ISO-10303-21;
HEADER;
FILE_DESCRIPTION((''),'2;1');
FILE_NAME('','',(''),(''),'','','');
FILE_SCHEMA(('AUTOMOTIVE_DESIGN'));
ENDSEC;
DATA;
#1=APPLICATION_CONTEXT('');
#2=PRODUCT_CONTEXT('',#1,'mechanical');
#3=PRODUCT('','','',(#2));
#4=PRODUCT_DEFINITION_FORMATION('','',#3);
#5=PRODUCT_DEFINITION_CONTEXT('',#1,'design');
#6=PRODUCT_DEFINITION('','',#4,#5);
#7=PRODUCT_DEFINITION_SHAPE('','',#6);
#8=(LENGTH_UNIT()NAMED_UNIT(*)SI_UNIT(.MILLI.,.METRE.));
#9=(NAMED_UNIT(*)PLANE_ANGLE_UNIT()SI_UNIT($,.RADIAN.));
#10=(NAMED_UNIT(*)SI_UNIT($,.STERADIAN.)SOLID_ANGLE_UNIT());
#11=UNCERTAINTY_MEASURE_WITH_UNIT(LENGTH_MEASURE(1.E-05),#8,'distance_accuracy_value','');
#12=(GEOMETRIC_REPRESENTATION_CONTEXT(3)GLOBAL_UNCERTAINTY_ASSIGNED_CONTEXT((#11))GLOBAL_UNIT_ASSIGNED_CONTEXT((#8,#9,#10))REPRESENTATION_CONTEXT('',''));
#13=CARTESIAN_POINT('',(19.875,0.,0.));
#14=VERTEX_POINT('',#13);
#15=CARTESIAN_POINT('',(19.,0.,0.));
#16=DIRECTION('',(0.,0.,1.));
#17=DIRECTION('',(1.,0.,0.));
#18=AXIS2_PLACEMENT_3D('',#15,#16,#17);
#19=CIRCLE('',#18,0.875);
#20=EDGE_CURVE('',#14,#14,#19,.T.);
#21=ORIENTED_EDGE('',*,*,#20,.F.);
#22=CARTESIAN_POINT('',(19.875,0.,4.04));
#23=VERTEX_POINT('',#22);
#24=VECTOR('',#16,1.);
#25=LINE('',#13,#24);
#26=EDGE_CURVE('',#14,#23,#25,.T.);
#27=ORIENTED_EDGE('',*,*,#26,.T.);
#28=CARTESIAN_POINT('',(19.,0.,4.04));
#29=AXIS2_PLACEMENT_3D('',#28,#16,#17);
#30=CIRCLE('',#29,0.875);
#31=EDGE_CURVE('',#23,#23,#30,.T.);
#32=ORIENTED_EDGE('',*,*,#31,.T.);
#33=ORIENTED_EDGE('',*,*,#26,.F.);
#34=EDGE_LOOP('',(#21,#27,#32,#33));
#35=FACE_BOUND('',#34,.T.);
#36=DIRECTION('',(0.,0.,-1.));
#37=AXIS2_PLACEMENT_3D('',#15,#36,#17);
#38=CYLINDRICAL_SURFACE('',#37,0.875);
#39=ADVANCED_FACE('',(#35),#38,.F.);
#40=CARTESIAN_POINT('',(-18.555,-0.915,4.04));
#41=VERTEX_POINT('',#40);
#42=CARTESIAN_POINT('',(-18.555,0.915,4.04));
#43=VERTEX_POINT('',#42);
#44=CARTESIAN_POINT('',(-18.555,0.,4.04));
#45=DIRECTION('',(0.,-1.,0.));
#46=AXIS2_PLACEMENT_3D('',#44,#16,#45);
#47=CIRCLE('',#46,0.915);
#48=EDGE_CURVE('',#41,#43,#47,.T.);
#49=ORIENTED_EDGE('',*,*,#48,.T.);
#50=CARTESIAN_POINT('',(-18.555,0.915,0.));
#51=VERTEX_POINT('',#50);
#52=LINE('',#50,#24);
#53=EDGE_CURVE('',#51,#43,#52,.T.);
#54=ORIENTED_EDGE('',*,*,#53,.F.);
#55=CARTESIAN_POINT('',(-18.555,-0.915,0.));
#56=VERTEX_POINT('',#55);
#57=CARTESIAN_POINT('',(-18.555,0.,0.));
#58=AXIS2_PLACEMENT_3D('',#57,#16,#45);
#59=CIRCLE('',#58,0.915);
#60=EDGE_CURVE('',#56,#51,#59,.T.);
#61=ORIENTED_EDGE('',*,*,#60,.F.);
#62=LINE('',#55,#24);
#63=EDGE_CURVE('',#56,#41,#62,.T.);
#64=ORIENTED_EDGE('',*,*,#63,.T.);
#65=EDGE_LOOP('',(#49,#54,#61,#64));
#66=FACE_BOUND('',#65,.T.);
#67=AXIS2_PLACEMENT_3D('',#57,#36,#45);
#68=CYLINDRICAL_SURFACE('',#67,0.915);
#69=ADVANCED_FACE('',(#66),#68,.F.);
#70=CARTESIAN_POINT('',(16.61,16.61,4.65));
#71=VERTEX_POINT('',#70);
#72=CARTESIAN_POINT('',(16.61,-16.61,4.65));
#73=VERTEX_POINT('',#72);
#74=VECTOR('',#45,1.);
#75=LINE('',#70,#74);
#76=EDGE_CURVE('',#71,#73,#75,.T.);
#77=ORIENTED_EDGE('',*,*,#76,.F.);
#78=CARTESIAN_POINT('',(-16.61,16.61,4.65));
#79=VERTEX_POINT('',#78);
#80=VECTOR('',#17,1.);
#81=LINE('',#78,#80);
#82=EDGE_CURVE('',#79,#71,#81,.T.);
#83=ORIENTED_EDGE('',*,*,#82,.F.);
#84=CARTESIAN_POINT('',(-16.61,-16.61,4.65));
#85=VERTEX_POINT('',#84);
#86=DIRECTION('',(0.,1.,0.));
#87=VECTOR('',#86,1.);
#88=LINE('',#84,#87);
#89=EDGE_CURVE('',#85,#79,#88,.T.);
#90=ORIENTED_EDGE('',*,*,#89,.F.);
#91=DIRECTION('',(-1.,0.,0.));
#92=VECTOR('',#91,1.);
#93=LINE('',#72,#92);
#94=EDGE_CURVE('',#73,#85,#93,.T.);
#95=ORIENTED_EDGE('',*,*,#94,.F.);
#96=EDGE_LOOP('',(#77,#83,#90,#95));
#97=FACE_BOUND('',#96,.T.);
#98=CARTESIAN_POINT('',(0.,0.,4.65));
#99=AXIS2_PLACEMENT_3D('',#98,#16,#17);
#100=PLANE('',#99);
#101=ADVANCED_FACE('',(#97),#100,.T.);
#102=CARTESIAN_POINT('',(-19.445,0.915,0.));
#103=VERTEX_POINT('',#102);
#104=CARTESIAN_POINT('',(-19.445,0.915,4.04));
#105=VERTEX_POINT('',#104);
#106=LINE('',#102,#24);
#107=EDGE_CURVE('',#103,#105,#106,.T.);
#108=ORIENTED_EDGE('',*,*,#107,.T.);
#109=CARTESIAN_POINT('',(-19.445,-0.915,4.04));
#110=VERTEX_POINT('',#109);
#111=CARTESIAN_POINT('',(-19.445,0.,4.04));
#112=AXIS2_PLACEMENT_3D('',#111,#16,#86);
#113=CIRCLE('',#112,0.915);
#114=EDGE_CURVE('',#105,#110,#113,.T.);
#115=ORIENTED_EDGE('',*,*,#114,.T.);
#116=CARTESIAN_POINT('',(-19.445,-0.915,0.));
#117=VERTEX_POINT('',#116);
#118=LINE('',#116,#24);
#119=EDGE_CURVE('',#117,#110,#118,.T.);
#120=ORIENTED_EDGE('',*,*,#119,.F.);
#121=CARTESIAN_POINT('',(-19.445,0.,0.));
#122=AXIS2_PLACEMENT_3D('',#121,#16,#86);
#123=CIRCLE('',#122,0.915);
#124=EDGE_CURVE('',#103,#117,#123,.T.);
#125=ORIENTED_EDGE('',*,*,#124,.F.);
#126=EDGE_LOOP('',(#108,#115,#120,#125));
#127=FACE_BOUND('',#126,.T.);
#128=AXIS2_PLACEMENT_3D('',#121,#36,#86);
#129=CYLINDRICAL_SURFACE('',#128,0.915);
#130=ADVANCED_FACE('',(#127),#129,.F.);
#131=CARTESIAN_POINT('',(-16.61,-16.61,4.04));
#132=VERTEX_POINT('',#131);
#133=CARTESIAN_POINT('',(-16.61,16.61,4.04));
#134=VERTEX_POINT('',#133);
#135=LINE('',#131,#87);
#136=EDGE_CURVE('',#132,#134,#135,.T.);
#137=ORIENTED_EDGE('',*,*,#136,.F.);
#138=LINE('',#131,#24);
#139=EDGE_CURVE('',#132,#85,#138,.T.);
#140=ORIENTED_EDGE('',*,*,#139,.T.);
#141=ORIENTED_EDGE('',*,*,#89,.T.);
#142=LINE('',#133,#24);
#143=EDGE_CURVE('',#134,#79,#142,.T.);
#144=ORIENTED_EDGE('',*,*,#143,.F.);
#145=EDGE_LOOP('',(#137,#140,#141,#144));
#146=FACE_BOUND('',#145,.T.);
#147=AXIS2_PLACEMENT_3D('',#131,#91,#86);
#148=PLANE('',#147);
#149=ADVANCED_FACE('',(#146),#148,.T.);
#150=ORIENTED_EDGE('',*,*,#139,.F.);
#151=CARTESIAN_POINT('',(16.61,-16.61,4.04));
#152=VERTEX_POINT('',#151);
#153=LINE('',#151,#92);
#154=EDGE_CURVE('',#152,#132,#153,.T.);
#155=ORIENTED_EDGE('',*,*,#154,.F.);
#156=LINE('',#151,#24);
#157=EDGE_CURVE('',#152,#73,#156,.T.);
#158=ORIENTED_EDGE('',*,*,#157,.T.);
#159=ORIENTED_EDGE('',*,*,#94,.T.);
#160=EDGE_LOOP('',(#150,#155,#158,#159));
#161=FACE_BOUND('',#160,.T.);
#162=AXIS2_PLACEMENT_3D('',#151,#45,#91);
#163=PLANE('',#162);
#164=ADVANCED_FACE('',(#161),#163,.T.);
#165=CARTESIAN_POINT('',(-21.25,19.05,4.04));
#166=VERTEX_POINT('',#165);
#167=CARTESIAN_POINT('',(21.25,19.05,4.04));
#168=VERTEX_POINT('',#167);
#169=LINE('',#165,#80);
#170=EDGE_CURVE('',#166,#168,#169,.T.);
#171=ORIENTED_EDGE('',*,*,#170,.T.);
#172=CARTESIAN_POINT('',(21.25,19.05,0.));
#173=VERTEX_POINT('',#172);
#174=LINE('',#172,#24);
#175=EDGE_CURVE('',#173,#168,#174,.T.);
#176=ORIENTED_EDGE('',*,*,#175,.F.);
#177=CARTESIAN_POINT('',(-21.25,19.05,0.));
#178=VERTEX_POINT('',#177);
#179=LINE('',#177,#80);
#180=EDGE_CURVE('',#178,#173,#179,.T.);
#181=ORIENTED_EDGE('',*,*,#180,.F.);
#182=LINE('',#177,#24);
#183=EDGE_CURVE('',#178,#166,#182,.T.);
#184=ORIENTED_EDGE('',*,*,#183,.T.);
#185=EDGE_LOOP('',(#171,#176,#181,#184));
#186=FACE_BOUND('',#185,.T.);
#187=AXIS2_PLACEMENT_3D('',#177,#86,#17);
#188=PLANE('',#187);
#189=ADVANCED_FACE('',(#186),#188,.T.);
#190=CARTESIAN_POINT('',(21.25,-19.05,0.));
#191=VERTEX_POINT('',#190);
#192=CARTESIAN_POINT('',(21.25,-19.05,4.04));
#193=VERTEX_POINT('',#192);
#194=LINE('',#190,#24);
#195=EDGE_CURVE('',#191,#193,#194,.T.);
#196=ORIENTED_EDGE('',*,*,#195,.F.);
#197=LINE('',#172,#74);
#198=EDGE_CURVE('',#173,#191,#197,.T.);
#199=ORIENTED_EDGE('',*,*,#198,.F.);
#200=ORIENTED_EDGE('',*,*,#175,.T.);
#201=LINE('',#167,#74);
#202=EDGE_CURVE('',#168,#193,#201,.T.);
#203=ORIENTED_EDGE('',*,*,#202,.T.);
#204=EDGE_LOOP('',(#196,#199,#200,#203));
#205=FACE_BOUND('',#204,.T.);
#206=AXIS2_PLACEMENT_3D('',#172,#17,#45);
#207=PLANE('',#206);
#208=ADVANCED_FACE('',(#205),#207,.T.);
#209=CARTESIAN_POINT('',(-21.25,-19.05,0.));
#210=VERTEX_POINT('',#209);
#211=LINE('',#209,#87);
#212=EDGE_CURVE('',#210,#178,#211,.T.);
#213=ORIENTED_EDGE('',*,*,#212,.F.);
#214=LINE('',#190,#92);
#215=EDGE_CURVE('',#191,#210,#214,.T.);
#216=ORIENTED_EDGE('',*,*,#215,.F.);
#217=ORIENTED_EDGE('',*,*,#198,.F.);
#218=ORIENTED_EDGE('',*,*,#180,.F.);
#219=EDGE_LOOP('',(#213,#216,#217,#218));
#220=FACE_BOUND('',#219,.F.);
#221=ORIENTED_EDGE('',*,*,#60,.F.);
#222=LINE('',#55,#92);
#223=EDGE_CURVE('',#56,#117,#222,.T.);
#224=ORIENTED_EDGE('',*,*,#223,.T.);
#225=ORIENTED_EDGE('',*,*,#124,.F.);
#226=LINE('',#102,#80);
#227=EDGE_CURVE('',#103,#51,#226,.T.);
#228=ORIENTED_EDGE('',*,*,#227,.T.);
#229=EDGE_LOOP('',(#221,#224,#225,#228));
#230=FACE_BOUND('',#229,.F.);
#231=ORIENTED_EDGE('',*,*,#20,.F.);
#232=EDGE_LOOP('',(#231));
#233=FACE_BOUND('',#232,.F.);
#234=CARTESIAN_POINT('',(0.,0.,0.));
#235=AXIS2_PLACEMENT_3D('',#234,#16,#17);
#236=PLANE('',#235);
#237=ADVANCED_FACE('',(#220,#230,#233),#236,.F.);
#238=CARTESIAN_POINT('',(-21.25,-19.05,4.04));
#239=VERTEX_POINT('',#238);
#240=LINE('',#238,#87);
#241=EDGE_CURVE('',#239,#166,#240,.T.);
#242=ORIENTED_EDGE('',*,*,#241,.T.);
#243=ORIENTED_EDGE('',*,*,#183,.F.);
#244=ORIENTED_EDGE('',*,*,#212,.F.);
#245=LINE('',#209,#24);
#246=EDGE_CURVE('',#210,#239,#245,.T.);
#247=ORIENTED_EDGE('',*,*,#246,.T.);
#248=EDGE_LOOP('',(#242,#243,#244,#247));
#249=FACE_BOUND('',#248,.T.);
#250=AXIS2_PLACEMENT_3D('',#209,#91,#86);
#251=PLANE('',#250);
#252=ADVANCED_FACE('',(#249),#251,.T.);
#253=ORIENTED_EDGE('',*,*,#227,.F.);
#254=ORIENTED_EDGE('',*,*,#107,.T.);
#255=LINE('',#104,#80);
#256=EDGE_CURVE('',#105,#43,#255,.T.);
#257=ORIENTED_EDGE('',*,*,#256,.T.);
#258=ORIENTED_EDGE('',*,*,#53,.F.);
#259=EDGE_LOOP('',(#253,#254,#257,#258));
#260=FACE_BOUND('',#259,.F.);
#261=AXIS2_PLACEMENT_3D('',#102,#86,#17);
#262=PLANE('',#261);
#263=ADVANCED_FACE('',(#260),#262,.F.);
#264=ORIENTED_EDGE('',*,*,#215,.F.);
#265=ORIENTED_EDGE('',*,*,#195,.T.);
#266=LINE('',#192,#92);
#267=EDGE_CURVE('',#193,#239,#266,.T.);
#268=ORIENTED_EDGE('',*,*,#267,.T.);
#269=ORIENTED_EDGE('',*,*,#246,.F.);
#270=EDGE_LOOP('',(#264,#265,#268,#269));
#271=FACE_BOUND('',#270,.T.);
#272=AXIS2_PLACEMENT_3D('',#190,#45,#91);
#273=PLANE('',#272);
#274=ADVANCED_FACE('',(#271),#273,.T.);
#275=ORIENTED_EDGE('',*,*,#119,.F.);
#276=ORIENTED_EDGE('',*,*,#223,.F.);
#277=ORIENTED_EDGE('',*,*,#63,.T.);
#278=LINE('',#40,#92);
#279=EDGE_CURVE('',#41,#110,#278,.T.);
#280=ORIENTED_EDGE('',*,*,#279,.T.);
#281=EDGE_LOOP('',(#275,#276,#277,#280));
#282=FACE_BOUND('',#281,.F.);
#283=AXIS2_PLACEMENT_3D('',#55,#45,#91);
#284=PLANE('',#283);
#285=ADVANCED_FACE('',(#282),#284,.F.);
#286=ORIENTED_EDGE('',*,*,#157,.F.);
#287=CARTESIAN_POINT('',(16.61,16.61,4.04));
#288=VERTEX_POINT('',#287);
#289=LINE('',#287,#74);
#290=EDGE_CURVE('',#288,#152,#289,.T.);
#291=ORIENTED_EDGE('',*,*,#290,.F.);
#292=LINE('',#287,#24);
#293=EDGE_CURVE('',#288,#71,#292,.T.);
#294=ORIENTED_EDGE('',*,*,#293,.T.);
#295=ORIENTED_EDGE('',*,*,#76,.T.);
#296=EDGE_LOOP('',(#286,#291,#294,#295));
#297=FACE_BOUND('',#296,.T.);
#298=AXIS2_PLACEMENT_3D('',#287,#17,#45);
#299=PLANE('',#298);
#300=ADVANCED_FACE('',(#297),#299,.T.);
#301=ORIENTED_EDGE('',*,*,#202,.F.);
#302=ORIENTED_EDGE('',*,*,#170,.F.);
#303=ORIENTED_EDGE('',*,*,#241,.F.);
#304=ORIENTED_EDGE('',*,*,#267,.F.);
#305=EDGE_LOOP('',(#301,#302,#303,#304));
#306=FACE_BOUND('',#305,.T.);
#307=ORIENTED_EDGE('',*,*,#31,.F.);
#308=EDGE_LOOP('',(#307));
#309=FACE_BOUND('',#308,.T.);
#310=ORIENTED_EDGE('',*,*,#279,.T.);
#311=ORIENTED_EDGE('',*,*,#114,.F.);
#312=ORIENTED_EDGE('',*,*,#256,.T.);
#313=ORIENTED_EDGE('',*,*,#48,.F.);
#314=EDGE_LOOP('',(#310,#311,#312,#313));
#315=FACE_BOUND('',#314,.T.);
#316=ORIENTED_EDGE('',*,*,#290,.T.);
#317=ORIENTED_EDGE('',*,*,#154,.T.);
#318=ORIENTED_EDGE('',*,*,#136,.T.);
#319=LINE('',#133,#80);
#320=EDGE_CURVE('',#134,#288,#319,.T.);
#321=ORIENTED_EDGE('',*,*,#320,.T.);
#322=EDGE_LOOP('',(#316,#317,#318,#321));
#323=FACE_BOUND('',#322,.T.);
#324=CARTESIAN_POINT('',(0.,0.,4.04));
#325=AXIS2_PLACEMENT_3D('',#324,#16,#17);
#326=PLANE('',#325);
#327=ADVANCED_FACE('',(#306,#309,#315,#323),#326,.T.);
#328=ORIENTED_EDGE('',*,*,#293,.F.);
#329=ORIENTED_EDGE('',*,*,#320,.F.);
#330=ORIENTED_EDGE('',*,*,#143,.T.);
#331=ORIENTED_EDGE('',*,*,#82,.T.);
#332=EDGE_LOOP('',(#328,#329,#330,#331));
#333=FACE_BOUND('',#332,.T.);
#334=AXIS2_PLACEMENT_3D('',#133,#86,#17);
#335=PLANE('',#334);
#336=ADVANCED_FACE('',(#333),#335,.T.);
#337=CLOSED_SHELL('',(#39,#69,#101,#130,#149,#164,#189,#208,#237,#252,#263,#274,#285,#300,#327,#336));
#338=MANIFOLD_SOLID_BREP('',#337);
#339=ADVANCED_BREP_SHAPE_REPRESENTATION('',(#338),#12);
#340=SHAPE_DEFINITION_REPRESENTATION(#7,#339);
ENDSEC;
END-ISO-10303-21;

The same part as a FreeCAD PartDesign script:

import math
import FreeCAD as App
import Part
import Sketcher
from FreeCAD import Vector
Q = App.Units.Quantity


def add_polygon(sketch, points):
    """Adds a closed chain of lines whose ends are joined by coincident constraints."""
    first, n = sketch.GeometryCount, len(points)
    for a, b in zip(points, points[1:] + points[:1]):
        sketch.addGeometry(Part.LineSegment(App.Vector(*a, 0), App.Vector(*b, 0)), False)
    for i in range(n):
        sketch.addConstraint(Sketcher.Constraint("Coincident", first + i, 2, first + (i + 1) % n, 1))

doc = App.newDocument("Part")
body = doc.addObject("PartDesign::Body", "Body")

# Sketch on XY plane
sketch1 = doc.addObject("Sketcher::SketchObject", "Sketch")
body.addObject(sketch1)
sketch1.AttachmentSupport = (doc.XY_Plane, [""])
sketch1.MapMode = "FlatFace"
add_polygon(sketch1, [(21.2, 19.1), (-21.2, 19.1), (-21.2, -19.1), (21.2, -19.1)])  # lines 0-3
sketch1.addGeometry(Part.ArcOfCircle(Part.Circle(Vector(-19.4, 0, 0), Vector(0, 0, 1), 0.9), math.radians(90), math.radians(270)), False)  # 4
sketch1.addGeometry(Part.LineSegment(Vector(-19.4, 0.9, 0), Vector(-18.6, 0.9, 0)), False)  # 5
sketch1.addGeometry(Part.ArcOfCircle(Part.Circle(Vector(-18.6, 0, 0), Vector(0, 0, 1), 0.9), math.radians(-90), math.radians(90)), False)  # 6
sketch1.addGeometry(Part.LineSegment(Vector(-18.6, -0.9, 0), Vector(-19.4, -0.9, 0)), False)  # 7
sketch1.addGeometry(Part.Circle(Vector(19, 0, 0), Vector(0, 0, 1), 0.9), False)  # 8
sketch1.addConstraint(Sketcher.Constraint("Tangent", 4, 1, 5, 1))
sketch1.addConstraint(Sketcher.Constraint("Tangent", 5, 2, 6, 2))
sketch1.addConstraint(Sketcher.Constraint("Tangent", 6, 1, 7, 1))
sketch1.addConstraint(Sketcher.Constraint("Tangent", 7, 2, 4, 2))
sketch1.addConstraint(Sketcher.Constraint("Horizontal", 0))
sketch1.addConstraint(Sketcher.Constraint("Vertical", 1))
sketch1.addConstraint(Sketcher.Constraint("Horizontal", 2))
sketch1.addConstraint(Sketcher.Constraint("Vertical", 3))
sketch1.addConstraint(Sketcher.Constraint("Horizontal", 5))
sketch1.addConstraint(Sketcher.Constraint("Horizontal", 7))
sketch1.addConstraint(Sketcher.Constraint("Symmetric", 0, 2, 2, 2, -1, 1))
sketch1.addConstraint(Sketcher.Constraint("PointOnObject", 4, 3, -1))
sketch1.addConstraint(Sketcher.Constraint("PointOnObject", 8, 3, -1))
sketch1.addConstraint(Sketcher.Constraint("Diameter", 8, Q("1.75 mm")))
sketch1.addConstraint(Sketcher.Constraint("DistanceX", 0, 2, 0, 1, Q("42.5 mm")))
sketch1.addConstraint(Sketcher.Constraint("DistanceY", 1, 2, 1, 1, Q("38.1 mm")))
sketch1.addConstraint(Sketcher.Constraint("Radius", 4, Q("0.915 mm")))
sketch1.addConstraint(Sketcher.Constraint("DistanceX", 8, 3, 2, 2, Q("2.25 mm")))
sketch1.addConstraint(Sketcher.Constraint("DistanceX", 5, 1, 5, 2, Q("0.89 mm")))
sketch1.addConstraint(Sketcher.Constraint("DistanceX", 4, 3, -1, 1, Q("19.445 mm")))
pad1 = doc.addObject("PartDesign::Pad", "Pad")
body.addObject(pad1)
pad1.Profile = sketch1
pad1.Length = 4.04

# Sketch on XY plane
sketch2 = doc.addObject("Sketcher::SketchObject", "Sketch001")
body.addObject(sketch2)
sketch2.AttachmentSupport = (doc.XY_Plane, [""])
sketch2.MapMode = "FlatFace"
sketch2.AttachmentOffset = App.Placement(Vector(0, 0, 4.04), App.Rotation())
add_polygon(sketch2, [(17, 17), (-17, 17), (-17, -17), (17, -17)])  # lines 0-3
sketch2.addConstraint(Sketcher.Constraint("Horizontal", 0))
sketch2.addConstraint(Sketcher.Constraint("Vertical", 1))
sketch2.addConstraint(Sketcher.Constraint("Horizontal", 2))
sketch2.addConstraint(Sketcher.Constraint("Vertical", 3))
sketch2.addConstraint(Sketcher.Constraint("Symmetric", 0, 2, 2, 2, -1, 1))
sketch2.addConstraint(Sketcher.Constraint("Equal", 2, 1))
sketch2.addConstraint(Sketcher.Constraint("DistanceX", 0, 2, 0, 1, Q("33.22 mm")))
pad2 = doc.addObject("PartDesign::Pad", "Pad001")
body.addObject(pad2)
pad2.Profile = sketch2
pad2.Length = 0.61

doc.recompute()
